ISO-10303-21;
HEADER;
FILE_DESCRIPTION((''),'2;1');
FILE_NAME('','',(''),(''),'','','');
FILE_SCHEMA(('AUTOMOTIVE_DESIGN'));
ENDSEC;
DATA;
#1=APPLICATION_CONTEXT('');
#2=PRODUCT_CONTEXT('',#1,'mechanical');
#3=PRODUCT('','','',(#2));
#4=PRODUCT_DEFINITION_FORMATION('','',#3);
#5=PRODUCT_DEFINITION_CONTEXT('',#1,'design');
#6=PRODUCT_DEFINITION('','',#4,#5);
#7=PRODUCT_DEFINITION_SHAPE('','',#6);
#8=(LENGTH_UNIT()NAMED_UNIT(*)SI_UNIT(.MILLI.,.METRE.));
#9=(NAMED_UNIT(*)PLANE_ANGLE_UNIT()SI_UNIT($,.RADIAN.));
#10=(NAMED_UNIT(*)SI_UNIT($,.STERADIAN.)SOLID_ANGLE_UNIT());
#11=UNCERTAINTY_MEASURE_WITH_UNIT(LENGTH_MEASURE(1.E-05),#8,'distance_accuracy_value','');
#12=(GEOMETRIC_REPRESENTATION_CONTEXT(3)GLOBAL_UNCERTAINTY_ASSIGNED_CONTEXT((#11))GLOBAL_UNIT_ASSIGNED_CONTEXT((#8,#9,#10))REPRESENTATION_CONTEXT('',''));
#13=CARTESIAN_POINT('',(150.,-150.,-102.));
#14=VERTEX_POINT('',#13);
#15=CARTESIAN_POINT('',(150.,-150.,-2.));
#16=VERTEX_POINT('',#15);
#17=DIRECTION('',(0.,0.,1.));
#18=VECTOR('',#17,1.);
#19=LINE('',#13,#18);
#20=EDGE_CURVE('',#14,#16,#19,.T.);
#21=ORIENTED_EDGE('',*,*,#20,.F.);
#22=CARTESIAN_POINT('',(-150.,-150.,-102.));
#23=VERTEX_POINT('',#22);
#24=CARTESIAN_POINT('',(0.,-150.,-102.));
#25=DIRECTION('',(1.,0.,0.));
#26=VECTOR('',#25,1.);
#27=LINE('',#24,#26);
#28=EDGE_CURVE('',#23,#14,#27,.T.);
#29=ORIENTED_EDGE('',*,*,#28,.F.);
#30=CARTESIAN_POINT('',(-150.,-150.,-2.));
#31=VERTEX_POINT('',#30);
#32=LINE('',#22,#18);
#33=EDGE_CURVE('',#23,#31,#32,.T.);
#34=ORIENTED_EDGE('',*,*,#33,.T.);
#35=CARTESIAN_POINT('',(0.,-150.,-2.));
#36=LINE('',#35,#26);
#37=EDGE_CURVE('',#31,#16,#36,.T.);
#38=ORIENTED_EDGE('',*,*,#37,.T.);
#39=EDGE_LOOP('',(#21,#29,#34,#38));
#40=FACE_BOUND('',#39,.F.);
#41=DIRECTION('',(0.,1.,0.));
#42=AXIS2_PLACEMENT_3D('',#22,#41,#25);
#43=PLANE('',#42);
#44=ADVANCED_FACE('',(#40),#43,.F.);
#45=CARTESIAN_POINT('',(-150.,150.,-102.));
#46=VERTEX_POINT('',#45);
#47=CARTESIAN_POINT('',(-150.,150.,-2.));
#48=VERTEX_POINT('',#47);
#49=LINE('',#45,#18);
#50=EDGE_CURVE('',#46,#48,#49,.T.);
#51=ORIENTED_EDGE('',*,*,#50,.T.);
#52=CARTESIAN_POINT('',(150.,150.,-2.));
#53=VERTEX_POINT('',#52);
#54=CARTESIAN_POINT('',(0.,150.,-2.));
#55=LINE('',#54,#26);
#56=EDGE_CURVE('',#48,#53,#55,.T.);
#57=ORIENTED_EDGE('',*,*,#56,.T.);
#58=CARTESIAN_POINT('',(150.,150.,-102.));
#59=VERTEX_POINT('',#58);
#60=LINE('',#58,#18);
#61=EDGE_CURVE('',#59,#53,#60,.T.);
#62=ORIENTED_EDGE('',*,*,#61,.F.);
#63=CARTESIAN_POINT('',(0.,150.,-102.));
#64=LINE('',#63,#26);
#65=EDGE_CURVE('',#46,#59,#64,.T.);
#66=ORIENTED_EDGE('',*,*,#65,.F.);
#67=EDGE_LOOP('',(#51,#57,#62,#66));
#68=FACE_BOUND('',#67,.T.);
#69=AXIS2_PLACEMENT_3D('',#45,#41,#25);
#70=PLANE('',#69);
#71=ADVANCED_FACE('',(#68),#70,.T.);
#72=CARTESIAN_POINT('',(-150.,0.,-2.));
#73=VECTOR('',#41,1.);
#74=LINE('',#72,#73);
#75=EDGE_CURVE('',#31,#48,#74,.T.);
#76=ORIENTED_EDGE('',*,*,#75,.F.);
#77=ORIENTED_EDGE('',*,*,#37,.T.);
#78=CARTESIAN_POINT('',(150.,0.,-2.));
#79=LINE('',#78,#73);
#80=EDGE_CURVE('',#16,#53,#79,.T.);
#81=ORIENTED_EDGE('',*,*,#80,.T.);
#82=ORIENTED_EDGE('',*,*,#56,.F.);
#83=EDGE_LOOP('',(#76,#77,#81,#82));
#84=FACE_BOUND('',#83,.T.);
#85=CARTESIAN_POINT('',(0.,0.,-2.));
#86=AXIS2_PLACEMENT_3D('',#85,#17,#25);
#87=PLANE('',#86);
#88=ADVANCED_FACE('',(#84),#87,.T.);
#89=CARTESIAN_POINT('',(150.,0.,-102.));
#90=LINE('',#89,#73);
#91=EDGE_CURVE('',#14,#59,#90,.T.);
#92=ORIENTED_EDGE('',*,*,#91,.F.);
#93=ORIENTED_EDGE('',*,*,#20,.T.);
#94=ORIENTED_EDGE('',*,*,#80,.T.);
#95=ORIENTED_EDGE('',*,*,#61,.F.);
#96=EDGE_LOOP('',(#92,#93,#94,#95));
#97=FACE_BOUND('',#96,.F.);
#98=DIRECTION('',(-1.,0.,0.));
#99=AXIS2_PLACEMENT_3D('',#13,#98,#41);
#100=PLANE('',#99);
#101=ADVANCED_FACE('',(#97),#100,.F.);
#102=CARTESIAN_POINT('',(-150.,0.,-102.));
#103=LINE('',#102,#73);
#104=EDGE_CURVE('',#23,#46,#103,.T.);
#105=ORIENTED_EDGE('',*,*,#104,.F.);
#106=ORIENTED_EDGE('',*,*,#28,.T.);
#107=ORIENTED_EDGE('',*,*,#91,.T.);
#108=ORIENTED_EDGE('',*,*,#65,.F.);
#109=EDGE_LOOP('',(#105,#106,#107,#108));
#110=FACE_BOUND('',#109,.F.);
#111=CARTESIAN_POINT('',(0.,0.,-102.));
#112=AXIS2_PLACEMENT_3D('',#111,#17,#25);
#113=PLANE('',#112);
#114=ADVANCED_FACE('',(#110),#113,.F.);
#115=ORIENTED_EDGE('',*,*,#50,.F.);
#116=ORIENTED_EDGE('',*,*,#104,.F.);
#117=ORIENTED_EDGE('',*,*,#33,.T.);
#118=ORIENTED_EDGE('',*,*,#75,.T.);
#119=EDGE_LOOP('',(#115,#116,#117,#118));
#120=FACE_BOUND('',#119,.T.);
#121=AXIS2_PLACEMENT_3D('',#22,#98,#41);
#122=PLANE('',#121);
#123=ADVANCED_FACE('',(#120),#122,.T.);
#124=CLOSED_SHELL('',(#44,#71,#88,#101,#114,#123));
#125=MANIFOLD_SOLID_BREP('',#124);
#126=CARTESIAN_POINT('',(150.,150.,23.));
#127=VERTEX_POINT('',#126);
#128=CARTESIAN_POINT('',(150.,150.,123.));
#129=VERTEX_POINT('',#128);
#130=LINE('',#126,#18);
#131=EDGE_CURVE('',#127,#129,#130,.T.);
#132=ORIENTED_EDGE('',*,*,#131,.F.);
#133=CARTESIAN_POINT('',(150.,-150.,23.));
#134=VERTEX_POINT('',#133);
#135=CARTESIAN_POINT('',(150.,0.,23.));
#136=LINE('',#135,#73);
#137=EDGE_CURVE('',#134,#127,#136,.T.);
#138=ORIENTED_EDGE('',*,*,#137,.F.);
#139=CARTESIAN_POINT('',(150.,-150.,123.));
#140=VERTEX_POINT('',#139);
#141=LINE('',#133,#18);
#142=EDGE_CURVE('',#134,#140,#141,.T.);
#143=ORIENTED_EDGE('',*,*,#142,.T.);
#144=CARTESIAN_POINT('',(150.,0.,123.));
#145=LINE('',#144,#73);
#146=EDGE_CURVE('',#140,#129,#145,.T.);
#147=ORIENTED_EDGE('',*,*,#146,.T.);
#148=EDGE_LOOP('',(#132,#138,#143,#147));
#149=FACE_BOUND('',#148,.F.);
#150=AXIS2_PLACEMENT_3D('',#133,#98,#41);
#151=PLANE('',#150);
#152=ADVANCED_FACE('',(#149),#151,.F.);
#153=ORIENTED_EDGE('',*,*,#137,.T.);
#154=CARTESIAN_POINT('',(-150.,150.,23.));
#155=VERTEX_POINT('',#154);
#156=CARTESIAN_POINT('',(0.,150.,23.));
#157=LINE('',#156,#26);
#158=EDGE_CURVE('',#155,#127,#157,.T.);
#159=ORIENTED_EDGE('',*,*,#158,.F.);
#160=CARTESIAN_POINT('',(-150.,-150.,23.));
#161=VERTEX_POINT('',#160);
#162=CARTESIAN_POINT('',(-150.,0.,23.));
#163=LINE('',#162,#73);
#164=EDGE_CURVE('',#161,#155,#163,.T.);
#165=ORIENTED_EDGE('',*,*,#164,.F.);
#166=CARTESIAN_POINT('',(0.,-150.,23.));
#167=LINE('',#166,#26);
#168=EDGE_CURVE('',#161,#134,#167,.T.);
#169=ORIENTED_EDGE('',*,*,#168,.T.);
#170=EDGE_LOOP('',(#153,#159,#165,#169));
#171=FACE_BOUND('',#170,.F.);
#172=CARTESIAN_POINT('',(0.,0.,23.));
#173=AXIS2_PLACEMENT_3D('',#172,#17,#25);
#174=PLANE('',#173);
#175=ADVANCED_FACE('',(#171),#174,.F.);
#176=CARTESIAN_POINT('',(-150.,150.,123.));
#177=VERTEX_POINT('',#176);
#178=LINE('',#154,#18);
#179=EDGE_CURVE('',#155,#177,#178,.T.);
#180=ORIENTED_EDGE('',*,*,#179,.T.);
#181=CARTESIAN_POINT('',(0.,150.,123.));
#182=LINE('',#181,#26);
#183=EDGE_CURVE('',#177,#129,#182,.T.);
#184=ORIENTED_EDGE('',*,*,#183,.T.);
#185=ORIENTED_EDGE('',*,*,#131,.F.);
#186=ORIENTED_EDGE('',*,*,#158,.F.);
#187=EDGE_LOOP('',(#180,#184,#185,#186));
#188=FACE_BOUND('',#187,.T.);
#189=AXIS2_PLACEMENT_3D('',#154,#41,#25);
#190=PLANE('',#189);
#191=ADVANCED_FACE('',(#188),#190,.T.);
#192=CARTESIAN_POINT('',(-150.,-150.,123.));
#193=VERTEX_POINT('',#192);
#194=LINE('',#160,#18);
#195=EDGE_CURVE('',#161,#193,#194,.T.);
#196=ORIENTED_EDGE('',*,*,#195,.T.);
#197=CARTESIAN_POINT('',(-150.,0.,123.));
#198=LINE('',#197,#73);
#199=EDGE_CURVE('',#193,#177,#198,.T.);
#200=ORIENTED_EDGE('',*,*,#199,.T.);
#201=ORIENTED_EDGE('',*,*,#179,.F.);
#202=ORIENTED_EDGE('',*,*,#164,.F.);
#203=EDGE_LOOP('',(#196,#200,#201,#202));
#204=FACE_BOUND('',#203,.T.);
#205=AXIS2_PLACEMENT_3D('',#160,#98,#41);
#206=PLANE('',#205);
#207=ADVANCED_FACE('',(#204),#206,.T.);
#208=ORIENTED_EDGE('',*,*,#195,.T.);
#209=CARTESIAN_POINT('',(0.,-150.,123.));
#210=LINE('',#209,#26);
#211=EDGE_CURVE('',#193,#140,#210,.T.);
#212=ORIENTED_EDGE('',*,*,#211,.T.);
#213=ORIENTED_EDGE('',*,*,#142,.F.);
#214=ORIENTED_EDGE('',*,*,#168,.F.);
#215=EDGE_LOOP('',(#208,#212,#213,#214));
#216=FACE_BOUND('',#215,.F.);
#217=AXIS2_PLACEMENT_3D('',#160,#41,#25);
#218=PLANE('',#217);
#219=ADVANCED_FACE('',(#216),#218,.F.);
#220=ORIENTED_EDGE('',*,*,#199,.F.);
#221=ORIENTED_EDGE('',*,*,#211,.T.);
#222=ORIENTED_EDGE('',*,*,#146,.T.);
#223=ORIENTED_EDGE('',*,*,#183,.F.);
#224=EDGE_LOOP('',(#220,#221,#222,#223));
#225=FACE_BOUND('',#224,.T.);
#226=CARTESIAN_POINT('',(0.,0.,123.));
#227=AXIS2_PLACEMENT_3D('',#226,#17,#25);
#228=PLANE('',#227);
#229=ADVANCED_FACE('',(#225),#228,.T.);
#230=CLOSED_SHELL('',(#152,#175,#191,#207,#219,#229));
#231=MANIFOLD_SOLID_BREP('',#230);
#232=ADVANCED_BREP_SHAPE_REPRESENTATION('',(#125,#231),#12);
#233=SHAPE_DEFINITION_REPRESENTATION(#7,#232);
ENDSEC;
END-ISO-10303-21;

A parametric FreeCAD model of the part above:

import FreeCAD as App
import Part
import Sketcher
from FreeCAD import Vector
Q = App.Units.Quantity


def add_polygon(sketch, points):
    """Adds a closed chain of lines whose ends are joined by coincident constraints."""
    first, n = sketch.GeometryCount, len(points)
    for a, b in zip(points, points[1:] + points[:1]):
        sketch.addGeometry(Part.LineSegment(App.Vector(*a, 0), App.Vector(*b, 0)), False)
    for i in range(n):
        sketch.addConstraint(Sketcher.Constraint("Coincident", first + i, 2, first + (i + 1) % n, 1))

doc = App.newDocument("Part")
params = doc.addObject("Spreadsheet::Sheet", "Params")
for row, (alias, value) in enumerate([
    ("sketch1_width", "300 mm"),
    ("pad1_length", "100 mm"),
    ("sketch2_width", "300 mm"),
    ("pad2_length", "100 mm"),
], start=1):
    params.set(f"A{row}", alias)
    params.set(f"B{row}", "=" + value)
    params.setAlias(f"B{row}", alias)

body = doc.addObject("PartDesign::Body", "Body")

# Sketch on XY plane
sketch1 = body.newObject("Sketcher::SketchObject", "Sketch")
sketch1.AttachmentSupport = (doc.getObject("XY_Plane"), [""])
sketch1.MapMode = "FlatFace"
sketch1.AttachmentOffset = App.Placement(Vector(0, 0, 23), App.Rotation())
add_polygon(sketch1, [(-150, 150), (-150, -150), (150, -150), (150, 150)])  # lines 0-3
sketch1.addConstraint(Sketcher.Constraint("Vertical", 0))
sketch1.addConstraint(Sketcher.Constraint("Horizontal", 1))
sketch1.addConstraint(Sketcher.Constraint("Vertical", 2))
sketch1.addConstraint(Sketcher.Constraint("Horizontal", 3))
sketch1.addConstraint(Sketcher.Constraint("Symmetric", 0, 2, 2, 2, -1, 1))
sketch1.addConstraint(Sketcher.Constraint("Equal", 3, 0))
sketch1.addConstraint(Sketcher.Constraint("DistanceX", 1, 1, 1, 2, Q("300 mm")))
sketch1.setExpression("Constraints[10]", "Params.sketch1_width")
pad1 = body.newObject("PartDesign::Pad", "Pad")
pad1.Profile = sketch1
pad1.setExpression("Length", "Params.pad1_length")
body2 = doc.addObject("PartDesign::Body", "Body001")
body2.AllowCompound = True

# Sketch on XY plane
sketch2 = body2.newObject("Sketcher::SketchObject", "Sketch001")
sketch2.AttachmentSupport = (doc.getObject("XY_Plane001"), [""])
sketch2.MapMode = "FlatFace"
sketch2.AttachmentOffset = App.Placement(Vector(0, 0, -102), App.Rotation())
add_polygon(sketch2, [(-150, 150), (-150, -150), (150, -150), (150, 150)])  # lines 0-3
sketch2.addConstraint(Sketcher.Constraint("Vertical", 0))
sketch2.addConstraint(Sketcher.Constraint("Horizontal", 1))
sketch2.addConstraint(Sketcher.Constraint("Vertical", 2))
sketch2.addConstraint(Sketcher.Constraint("Horizontal", 3))
sketch2.addConstraint(Sketcher.Constraint("Symmetric", 0, 2, 2, 2, -1, 1))
sketch2.addConstraint(Sketcher.Constraint("Equal", 3, 0))
sketch2.addConstraint(Sketcher.Constraint("DistanceX", 1, 1, 1, 2, Q("300 mm")))
sketch2.setExpression("Constraints[10]", "Params.sketch2_width")
pad2 = body2.newObject("PartDesign::Pad", "Pad001")
pad2.Profile = sketch2
pad2.setExpression("Length", "Params.pad2_length")
doc.recompute()

boolean = body2.newObject("PartDesign::Boolean", "Boolean")
boolean.Type = "Fuse"
boolean.addObjects([body])

doc.recompute()
